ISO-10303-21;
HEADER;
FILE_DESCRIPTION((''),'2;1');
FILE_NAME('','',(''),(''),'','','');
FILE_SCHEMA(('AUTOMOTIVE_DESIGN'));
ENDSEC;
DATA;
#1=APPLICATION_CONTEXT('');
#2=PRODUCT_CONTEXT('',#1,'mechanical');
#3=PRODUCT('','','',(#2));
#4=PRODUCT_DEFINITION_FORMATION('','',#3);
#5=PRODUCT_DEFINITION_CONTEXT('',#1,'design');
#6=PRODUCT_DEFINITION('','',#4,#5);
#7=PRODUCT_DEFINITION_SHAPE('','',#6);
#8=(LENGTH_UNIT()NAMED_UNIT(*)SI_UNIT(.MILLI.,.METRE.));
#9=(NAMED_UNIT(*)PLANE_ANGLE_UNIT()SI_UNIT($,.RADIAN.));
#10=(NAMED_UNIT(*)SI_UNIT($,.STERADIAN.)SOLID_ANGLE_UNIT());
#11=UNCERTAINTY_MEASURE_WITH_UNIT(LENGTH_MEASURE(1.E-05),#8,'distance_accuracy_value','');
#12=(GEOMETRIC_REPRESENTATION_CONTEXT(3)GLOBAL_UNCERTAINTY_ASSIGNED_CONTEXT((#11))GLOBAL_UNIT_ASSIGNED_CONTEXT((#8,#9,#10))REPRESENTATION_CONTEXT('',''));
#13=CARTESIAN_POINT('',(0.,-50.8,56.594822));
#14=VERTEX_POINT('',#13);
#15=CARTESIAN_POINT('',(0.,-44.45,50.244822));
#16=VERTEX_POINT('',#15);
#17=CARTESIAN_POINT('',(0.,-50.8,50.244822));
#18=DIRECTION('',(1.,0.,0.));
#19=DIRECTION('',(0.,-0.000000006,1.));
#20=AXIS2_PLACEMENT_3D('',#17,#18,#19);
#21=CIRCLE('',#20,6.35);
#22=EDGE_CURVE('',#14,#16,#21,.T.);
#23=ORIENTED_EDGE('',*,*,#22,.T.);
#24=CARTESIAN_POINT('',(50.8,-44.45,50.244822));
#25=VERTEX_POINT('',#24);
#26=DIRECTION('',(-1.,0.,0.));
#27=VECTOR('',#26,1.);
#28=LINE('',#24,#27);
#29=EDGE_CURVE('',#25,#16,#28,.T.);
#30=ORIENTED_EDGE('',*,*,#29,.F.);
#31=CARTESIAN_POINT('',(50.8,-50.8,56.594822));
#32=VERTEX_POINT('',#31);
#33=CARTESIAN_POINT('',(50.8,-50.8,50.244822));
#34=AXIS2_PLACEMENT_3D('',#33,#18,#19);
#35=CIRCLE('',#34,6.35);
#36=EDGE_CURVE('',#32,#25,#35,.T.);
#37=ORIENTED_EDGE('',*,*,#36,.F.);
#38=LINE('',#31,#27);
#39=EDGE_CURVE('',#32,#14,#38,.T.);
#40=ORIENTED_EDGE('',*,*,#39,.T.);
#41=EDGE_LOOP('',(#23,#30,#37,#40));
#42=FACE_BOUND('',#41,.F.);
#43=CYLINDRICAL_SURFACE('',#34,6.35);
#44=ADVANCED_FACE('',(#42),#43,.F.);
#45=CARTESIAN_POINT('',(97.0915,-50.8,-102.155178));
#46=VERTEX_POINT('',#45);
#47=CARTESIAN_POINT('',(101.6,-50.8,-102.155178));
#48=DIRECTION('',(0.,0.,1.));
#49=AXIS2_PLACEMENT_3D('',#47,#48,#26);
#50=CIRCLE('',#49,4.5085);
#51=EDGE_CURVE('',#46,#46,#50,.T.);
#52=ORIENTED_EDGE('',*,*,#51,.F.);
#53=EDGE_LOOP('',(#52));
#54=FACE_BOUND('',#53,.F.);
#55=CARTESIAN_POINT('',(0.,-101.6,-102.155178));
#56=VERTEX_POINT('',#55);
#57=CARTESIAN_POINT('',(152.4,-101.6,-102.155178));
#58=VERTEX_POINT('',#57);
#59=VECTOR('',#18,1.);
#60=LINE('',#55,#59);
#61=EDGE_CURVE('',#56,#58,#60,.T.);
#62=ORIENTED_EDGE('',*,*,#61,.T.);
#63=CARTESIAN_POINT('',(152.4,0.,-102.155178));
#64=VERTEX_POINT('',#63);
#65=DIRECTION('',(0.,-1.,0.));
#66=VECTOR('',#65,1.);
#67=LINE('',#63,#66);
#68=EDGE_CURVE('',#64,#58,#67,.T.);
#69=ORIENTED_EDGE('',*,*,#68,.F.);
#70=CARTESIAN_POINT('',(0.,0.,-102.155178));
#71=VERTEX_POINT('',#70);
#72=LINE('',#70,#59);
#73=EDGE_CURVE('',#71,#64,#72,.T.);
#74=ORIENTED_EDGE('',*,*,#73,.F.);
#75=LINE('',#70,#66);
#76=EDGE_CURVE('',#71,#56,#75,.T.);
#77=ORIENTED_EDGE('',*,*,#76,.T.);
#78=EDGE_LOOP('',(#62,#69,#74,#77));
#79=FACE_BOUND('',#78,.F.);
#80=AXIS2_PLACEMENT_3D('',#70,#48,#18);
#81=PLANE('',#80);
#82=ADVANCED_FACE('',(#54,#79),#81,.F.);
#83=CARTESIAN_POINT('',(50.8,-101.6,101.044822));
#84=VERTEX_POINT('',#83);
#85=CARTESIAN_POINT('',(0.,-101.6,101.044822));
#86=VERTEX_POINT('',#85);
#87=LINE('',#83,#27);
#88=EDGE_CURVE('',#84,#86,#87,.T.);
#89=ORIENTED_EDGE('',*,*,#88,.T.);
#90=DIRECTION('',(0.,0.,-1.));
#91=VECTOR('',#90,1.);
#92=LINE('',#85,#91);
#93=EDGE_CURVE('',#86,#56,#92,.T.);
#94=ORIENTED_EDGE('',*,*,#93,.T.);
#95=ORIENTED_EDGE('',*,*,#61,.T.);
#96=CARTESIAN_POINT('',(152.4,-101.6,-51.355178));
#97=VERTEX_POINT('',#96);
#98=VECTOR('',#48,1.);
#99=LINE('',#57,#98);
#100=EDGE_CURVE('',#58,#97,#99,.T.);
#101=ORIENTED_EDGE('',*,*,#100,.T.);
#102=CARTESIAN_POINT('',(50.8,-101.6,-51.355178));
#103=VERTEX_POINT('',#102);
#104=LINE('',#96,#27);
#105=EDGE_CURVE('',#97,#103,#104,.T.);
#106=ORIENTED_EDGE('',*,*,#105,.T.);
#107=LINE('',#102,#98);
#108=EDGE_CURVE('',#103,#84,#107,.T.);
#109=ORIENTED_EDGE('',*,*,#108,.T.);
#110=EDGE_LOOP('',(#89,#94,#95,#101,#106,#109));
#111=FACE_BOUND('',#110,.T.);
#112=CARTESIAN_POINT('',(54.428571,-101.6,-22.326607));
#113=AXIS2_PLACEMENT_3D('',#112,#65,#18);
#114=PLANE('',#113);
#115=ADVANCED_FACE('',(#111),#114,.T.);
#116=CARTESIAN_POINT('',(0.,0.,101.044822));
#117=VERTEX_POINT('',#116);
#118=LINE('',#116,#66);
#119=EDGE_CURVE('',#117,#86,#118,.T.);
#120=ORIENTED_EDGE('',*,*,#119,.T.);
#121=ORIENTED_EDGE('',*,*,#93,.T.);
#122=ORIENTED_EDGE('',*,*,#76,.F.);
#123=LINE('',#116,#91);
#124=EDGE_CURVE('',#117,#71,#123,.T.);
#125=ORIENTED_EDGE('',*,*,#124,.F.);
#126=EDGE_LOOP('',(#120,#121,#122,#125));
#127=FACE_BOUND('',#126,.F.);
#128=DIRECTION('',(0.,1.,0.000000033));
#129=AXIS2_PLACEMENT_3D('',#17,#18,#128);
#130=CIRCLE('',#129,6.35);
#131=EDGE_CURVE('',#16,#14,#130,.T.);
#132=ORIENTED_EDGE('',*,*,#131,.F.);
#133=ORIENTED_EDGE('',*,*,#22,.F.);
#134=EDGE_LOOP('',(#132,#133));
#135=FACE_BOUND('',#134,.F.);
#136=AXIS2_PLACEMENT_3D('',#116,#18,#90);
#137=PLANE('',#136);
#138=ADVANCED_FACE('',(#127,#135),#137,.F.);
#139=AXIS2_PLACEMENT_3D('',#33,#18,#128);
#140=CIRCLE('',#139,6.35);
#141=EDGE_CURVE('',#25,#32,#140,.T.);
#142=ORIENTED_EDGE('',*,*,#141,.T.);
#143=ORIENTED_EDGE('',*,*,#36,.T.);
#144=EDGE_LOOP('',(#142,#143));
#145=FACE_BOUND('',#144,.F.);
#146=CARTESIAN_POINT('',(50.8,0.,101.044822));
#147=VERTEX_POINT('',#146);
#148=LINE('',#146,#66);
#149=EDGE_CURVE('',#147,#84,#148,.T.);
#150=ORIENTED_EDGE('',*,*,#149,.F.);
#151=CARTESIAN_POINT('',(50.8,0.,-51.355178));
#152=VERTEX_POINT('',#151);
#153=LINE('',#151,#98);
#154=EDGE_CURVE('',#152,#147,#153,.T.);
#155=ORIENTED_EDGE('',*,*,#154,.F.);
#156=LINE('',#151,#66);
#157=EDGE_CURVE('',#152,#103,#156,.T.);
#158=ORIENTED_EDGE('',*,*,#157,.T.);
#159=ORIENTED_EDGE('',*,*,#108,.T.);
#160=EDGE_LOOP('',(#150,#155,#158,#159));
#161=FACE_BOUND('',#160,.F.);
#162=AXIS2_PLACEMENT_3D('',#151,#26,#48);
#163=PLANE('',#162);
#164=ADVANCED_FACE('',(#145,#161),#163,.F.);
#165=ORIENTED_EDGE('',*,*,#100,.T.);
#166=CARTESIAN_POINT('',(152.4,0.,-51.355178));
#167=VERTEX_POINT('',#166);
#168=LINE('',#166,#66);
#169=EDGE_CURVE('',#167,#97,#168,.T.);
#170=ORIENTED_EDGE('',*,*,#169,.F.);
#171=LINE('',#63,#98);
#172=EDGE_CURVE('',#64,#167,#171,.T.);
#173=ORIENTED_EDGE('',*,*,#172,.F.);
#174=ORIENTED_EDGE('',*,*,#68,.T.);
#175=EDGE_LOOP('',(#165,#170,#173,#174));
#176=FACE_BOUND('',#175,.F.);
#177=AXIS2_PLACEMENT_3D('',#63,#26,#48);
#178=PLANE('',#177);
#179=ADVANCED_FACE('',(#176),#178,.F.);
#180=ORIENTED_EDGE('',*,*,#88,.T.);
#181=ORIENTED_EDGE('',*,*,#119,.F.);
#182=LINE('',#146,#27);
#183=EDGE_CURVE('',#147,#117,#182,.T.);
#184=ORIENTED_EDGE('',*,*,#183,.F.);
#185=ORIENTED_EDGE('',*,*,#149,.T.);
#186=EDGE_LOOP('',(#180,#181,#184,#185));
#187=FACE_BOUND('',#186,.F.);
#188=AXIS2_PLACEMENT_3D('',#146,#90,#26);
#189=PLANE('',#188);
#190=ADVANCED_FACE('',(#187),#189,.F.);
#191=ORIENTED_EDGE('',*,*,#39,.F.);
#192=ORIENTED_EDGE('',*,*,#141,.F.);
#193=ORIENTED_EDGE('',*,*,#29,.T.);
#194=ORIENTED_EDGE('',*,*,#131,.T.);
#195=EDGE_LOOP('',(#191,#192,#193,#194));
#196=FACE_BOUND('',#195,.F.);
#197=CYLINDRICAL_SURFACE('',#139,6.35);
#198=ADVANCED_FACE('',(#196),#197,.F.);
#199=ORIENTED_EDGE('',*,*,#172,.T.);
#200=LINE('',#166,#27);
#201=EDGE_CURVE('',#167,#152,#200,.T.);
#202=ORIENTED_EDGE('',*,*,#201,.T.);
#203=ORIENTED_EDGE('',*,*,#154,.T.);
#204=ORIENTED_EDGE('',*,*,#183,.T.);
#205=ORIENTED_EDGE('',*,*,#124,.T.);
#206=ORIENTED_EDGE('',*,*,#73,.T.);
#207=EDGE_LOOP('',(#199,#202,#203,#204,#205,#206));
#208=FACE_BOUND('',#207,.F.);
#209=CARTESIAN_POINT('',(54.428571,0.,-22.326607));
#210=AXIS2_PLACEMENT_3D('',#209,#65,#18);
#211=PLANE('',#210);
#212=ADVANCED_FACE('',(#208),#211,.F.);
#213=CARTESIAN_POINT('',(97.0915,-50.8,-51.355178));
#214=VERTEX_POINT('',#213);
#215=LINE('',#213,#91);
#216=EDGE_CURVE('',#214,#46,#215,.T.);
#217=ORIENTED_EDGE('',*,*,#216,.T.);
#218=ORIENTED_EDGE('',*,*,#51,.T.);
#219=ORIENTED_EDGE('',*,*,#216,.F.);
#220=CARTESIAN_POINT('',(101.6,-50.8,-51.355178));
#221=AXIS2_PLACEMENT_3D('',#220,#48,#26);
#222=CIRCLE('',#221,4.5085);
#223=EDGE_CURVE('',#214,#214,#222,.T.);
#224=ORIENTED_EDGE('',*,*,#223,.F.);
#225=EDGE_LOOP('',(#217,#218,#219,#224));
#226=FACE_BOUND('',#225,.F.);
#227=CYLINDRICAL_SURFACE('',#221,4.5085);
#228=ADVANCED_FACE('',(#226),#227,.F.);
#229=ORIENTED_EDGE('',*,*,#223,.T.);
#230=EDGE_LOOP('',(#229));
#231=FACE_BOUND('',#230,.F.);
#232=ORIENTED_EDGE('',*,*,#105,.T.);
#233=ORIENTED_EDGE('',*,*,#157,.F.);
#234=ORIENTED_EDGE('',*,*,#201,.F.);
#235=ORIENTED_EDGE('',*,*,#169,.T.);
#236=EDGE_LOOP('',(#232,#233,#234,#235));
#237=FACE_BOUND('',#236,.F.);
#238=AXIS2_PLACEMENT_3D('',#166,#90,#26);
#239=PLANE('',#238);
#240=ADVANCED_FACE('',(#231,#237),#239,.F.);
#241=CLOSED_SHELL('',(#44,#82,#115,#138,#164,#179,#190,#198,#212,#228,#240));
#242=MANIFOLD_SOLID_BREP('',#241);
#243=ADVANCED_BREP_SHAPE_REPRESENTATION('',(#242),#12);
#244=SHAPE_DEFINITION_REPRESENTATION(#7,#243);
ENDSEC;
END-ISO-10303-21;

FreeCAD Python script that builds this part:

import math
import FreeCAD as App
import Part
import Sketcher

V = App.Vector
Q = App.Units.Quantity

doc = App.newDocument("Part")
body = doc.addObject("PartDesign::Body", "Body")

# Sketch on XZ plane
sketch1 = body.newObject("Sketcher::SketchObject", "Sketch")
sketch1.AttachmentSupport = (doc.getObject("XZ_Plane"), [""])
sketch1.MapMode = "FlatFace"
sketch1.addGeometry([
    Part.LineSegment(V(51, 101, 0), V(0, 101, 0)),  # 0
    Part.LineSegment(V(0, 101, 0), V(0, -102, 0)),  # 1
    Part.LineSegment(V(0, -102, 0), V(152, -102, 0)),  # 2
    Part.LineSegment(V(152, -102, 0), V(152, -51, 0)),  # 3
    Part.LineSegment(V(152, -51, 0), V(51, -51, 0)),  # 4
    Part.LineSegment(V(51, -51, 0), V(51, 101, 0)),  # 5
], False)
sketch1.addConstraint([
    Sketcher.Constraint("Coincident", 0, 2, 1, 1),
    Sketcher.Constraint("Coincident", 1, 2, 2, 1),
    Sketcher.Constraint("Coincident", 2, 2, 3, 1),
    Sketcher.Constraint("Coincident", 3, 2, 4, 1),
    Sketcher.Constraint("Coincident", 4, 2, 5, 1),
    Sketcher.Constraint("Coincident", 5, 2, 0, 1),
    Sketcher.Constraint("Horizontal", 0),
    Sketcher.Constraint("Vertical", 1),
    Sketcher.Constraint("Horizontal", 2),
    Sketcher.Constraint("Vertical", 3),
    Sketcher.Constraint("Horizontal", 4),
    Sketcher.Constraint("Vertical", 5),
    Sketcher.Constraint("PointOnObject", 0, 2, -2),
    Sketcher.Constraint("Equal", 0, 3),
    Sketcher.Constraint("Equal", 2, 5),
    Sketcher.Constraint("DistanceX", 0, 2, 0, 1, Q("2 in")),
    Sketcher.Constraint("DistanceX", 2, 1, 2, 2, Q("6 in")),
    Sketcher.Constraint("DistanceY", -1, 1, 0, 2, 101.044822),
])
pad1 = body.newObject("PartDesign::Pad", "Pad")
pad1.Profile = sketch1
pad1.Length = Q("4 in")

# Sketch on XY plane
sketch2 = body.newObject("Sketcher::SketchObject", "Sketch001")
sketch2.AttachmentSupport = (doc.getObject("XY_Plane"), [""])
sketch2.MapMode = "FlatFace"
sketch2.AttachmentOffset = App.Placement(V(0, 0, -51.355178), App.Rotation())
sketch2.addGeometry(Part.Circle(V(101.6, -50.8, 0), V(0, 0, 1), 4.5), False)
sketch2.addConstraint([
    Sketcher.Constraint("Diameter", 0, Q("0.355 in")),
    Sketcher.Constraint("DistanceX", -1, 1, 0, 3, Q("4 in")),
    Sketcher.Constraint("DistanceY", 0, 3, -1, 1, Q("2 in")),
])
pocket1 = body.newObject("PartDesign::Pocket", "Pocket")
pocket1.Profile = sketch2
pocket1.Length = 115.900189

# Sketch on YZ plane
sketch3 = body.newObject("Sketcher::SketchObject", "Sketch002")
sketch3.AttachmentSupport = (doc.getObject("YZ_Plane"), [""])
sketch3.MapMode = "FlatFace"
sketch3.AttachmentOffset = App.Placement(V(0, 0, 2 * 25.4), App.Rotation())
sketch3.addGeometry([
    Part.ArcOfCircle(Part.Circle(V(-51, 50, 0), V(0, 0, 1), 6), math.radians(0), math.radians(90)),
    Part.ArcOfCircle(Part.Circle(V(-51, 50, 0), V(0, 0, 1), 6), math.radians(90), math.radians(360)),
], False)
sketch3.addConstraint([
    Sketcher.Constraint("Tangent", 0, 1, 1, 2),
    Sketcher.Constraint("Coincident", 1, 1, 0, 2),
    Sketcher.Constraint("Horizontal", 1, 3, 0, 1),
    Sketcher.Constraint("Vertical", 0, 3, 1, 1),
    Sketcher.Constraint("Radius", 0, Q("0.25 in")),
    Sketcher.Constraint("DistanceX", 0, 3, -1, 1, Q("2 in")),
    Sketcher.Constraint("DistanceY", -1, 1, 0, 3, 50.244822),
])
pocket2 = body.newObject("PartDesign::Pocket", "Pocket001")
pocket2.Profile = sketch3
pocket2.Length = 182.793036

doc.recompute()
